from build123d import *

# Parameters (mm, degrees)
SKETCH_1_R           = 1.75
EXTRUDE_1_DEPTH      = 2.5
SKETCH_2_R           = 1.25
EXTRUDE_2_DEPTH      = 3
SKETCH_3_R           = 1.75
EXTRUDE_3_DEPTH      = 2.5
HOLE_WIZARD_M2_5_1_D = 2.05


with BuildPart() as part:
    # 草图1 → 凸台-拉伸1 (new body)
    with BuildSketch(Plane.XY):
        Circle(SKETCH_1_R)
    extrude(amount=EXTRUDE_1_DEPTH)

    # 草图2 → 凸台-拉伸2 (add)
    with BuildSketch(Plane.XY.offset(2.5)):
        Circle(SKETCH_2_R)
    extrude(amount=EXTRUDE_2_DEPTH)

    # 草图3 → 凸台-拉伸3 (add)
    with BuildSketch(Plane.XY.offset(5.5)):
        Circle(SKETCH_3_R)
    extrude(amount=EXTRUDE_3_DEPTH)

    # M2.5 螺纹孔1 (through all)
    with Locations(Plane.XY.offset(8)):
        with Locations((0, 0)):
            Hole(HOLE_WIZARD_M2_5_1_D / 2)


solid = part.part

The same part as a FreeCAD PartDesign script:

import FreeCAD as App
import Part
import Sketcher

V = App.Vector

doc = App.newDocument("Part")
body = doc.addObject("PartDesign::Body", "Body")

# Sketch on XY plane
sketch1 = body.newObject("Sketcher::SketchObject", "Sketch")
sketch1.AttachmentSupport = (doc.getObject("XY_Plane"), [""])
sketch1.MapMode = "FlatFace"
sketch1.addGeometry(Part.Circle(V(0, 0, 0), V(0, 0, 1), 1.75), False)
sketch1.addConstraint(Sketcher.Constraint("Coincident", 0, 3, -1, 1))
sketch1.addConstraint(Sketcher.Constraint("Diameter", 0, 3.5))
pad1 = body.newObject("PartDesign::Pad", "Pad")
pad1.Profile = sketch1
pad1.Length = 2.5

# Sketch on XY plane
sketch2 = body.newObject("Sketcher::SketchObject", "Sketch001")
sketch2.AttachmentSupport = (doc.getObject("XY_Plane"), [""])
sketch2.MapMode = "FlatFace"
sketch2.AttachmentOffset = App.Placement(V(0, 0, 2.5), App.Rotation())
sketch2.addGeometry(Part.Circle(V(0, 0, 0), V(0, 0, 1), 1.25), False)
sketch2.addConstraint(Sketcher.Constraint("Coincident", 0, 3, -1, 1))
sketch2.addConstraint(Sketcher.Constraint("Diameter", 0, 2.5))
pad2 = body.newObject("PartDesign::Pad", "Pad001")
pad2.Profile = sketch2
pad2.Length = 3

# Sketch on XY plane
sketch3 = body.newObject("Sketcher::SketchObject", "Sketch002")
sketch3.AttachmentSupport = (doc.getObject("XY_Plane"), [""])
sketch3.MapMode = "FlatFace"
sketch3.AttachmentOffset = App.Placement(V(0, 0, 5.5), App.Rotation())
sketch3.addGeometry(Part.Circle(V(0, 0, 0), V(0, 0, 1), 1.75), False)
sketch3.addConstraint(Sketcher.Constraint("Coincident", 0, 3, -1, 1))
sketch3.addConstraint(Sketcher.Constraint("Diameter", 0, 3.5))
pad3 = body.newObject("PartDesign::Pad", "Pad002")
pad3.Profile = sketch3
pad3.Length = 2.5

# Sketch on XY plane
sketch4 = body.newObject("Sketcher::SketchObject", "Sketch003")
sketch4.AttachmentSupport = (doc.getObject("XY_Plane"), [""])
sketch4.MapMode = "FlatFace"
sketch4.AttachmentOffset = App.Placement(V(0, 0, 8), App.Rotation())
sketch4.addGeometry(Part.Circle(V(0, 0, 0), V(0, 0, 1), 1.025), False)
sketch4.addConstraint(Sketcher.Constraint("Coincident", 0, 3, -1, 1))
sketch4.addConstraint(Sketcher.Constraint("Diameter", 0, 2.05))
doc.recompute()
hole = body.newObject("PartDesign::Hole", "Hole")
hole.Profile = sketch4
hole.ThreadType = "None"
hole.Diameter = 2.05
hole.DepthType = "ThroughAll"

doc.recompute()
